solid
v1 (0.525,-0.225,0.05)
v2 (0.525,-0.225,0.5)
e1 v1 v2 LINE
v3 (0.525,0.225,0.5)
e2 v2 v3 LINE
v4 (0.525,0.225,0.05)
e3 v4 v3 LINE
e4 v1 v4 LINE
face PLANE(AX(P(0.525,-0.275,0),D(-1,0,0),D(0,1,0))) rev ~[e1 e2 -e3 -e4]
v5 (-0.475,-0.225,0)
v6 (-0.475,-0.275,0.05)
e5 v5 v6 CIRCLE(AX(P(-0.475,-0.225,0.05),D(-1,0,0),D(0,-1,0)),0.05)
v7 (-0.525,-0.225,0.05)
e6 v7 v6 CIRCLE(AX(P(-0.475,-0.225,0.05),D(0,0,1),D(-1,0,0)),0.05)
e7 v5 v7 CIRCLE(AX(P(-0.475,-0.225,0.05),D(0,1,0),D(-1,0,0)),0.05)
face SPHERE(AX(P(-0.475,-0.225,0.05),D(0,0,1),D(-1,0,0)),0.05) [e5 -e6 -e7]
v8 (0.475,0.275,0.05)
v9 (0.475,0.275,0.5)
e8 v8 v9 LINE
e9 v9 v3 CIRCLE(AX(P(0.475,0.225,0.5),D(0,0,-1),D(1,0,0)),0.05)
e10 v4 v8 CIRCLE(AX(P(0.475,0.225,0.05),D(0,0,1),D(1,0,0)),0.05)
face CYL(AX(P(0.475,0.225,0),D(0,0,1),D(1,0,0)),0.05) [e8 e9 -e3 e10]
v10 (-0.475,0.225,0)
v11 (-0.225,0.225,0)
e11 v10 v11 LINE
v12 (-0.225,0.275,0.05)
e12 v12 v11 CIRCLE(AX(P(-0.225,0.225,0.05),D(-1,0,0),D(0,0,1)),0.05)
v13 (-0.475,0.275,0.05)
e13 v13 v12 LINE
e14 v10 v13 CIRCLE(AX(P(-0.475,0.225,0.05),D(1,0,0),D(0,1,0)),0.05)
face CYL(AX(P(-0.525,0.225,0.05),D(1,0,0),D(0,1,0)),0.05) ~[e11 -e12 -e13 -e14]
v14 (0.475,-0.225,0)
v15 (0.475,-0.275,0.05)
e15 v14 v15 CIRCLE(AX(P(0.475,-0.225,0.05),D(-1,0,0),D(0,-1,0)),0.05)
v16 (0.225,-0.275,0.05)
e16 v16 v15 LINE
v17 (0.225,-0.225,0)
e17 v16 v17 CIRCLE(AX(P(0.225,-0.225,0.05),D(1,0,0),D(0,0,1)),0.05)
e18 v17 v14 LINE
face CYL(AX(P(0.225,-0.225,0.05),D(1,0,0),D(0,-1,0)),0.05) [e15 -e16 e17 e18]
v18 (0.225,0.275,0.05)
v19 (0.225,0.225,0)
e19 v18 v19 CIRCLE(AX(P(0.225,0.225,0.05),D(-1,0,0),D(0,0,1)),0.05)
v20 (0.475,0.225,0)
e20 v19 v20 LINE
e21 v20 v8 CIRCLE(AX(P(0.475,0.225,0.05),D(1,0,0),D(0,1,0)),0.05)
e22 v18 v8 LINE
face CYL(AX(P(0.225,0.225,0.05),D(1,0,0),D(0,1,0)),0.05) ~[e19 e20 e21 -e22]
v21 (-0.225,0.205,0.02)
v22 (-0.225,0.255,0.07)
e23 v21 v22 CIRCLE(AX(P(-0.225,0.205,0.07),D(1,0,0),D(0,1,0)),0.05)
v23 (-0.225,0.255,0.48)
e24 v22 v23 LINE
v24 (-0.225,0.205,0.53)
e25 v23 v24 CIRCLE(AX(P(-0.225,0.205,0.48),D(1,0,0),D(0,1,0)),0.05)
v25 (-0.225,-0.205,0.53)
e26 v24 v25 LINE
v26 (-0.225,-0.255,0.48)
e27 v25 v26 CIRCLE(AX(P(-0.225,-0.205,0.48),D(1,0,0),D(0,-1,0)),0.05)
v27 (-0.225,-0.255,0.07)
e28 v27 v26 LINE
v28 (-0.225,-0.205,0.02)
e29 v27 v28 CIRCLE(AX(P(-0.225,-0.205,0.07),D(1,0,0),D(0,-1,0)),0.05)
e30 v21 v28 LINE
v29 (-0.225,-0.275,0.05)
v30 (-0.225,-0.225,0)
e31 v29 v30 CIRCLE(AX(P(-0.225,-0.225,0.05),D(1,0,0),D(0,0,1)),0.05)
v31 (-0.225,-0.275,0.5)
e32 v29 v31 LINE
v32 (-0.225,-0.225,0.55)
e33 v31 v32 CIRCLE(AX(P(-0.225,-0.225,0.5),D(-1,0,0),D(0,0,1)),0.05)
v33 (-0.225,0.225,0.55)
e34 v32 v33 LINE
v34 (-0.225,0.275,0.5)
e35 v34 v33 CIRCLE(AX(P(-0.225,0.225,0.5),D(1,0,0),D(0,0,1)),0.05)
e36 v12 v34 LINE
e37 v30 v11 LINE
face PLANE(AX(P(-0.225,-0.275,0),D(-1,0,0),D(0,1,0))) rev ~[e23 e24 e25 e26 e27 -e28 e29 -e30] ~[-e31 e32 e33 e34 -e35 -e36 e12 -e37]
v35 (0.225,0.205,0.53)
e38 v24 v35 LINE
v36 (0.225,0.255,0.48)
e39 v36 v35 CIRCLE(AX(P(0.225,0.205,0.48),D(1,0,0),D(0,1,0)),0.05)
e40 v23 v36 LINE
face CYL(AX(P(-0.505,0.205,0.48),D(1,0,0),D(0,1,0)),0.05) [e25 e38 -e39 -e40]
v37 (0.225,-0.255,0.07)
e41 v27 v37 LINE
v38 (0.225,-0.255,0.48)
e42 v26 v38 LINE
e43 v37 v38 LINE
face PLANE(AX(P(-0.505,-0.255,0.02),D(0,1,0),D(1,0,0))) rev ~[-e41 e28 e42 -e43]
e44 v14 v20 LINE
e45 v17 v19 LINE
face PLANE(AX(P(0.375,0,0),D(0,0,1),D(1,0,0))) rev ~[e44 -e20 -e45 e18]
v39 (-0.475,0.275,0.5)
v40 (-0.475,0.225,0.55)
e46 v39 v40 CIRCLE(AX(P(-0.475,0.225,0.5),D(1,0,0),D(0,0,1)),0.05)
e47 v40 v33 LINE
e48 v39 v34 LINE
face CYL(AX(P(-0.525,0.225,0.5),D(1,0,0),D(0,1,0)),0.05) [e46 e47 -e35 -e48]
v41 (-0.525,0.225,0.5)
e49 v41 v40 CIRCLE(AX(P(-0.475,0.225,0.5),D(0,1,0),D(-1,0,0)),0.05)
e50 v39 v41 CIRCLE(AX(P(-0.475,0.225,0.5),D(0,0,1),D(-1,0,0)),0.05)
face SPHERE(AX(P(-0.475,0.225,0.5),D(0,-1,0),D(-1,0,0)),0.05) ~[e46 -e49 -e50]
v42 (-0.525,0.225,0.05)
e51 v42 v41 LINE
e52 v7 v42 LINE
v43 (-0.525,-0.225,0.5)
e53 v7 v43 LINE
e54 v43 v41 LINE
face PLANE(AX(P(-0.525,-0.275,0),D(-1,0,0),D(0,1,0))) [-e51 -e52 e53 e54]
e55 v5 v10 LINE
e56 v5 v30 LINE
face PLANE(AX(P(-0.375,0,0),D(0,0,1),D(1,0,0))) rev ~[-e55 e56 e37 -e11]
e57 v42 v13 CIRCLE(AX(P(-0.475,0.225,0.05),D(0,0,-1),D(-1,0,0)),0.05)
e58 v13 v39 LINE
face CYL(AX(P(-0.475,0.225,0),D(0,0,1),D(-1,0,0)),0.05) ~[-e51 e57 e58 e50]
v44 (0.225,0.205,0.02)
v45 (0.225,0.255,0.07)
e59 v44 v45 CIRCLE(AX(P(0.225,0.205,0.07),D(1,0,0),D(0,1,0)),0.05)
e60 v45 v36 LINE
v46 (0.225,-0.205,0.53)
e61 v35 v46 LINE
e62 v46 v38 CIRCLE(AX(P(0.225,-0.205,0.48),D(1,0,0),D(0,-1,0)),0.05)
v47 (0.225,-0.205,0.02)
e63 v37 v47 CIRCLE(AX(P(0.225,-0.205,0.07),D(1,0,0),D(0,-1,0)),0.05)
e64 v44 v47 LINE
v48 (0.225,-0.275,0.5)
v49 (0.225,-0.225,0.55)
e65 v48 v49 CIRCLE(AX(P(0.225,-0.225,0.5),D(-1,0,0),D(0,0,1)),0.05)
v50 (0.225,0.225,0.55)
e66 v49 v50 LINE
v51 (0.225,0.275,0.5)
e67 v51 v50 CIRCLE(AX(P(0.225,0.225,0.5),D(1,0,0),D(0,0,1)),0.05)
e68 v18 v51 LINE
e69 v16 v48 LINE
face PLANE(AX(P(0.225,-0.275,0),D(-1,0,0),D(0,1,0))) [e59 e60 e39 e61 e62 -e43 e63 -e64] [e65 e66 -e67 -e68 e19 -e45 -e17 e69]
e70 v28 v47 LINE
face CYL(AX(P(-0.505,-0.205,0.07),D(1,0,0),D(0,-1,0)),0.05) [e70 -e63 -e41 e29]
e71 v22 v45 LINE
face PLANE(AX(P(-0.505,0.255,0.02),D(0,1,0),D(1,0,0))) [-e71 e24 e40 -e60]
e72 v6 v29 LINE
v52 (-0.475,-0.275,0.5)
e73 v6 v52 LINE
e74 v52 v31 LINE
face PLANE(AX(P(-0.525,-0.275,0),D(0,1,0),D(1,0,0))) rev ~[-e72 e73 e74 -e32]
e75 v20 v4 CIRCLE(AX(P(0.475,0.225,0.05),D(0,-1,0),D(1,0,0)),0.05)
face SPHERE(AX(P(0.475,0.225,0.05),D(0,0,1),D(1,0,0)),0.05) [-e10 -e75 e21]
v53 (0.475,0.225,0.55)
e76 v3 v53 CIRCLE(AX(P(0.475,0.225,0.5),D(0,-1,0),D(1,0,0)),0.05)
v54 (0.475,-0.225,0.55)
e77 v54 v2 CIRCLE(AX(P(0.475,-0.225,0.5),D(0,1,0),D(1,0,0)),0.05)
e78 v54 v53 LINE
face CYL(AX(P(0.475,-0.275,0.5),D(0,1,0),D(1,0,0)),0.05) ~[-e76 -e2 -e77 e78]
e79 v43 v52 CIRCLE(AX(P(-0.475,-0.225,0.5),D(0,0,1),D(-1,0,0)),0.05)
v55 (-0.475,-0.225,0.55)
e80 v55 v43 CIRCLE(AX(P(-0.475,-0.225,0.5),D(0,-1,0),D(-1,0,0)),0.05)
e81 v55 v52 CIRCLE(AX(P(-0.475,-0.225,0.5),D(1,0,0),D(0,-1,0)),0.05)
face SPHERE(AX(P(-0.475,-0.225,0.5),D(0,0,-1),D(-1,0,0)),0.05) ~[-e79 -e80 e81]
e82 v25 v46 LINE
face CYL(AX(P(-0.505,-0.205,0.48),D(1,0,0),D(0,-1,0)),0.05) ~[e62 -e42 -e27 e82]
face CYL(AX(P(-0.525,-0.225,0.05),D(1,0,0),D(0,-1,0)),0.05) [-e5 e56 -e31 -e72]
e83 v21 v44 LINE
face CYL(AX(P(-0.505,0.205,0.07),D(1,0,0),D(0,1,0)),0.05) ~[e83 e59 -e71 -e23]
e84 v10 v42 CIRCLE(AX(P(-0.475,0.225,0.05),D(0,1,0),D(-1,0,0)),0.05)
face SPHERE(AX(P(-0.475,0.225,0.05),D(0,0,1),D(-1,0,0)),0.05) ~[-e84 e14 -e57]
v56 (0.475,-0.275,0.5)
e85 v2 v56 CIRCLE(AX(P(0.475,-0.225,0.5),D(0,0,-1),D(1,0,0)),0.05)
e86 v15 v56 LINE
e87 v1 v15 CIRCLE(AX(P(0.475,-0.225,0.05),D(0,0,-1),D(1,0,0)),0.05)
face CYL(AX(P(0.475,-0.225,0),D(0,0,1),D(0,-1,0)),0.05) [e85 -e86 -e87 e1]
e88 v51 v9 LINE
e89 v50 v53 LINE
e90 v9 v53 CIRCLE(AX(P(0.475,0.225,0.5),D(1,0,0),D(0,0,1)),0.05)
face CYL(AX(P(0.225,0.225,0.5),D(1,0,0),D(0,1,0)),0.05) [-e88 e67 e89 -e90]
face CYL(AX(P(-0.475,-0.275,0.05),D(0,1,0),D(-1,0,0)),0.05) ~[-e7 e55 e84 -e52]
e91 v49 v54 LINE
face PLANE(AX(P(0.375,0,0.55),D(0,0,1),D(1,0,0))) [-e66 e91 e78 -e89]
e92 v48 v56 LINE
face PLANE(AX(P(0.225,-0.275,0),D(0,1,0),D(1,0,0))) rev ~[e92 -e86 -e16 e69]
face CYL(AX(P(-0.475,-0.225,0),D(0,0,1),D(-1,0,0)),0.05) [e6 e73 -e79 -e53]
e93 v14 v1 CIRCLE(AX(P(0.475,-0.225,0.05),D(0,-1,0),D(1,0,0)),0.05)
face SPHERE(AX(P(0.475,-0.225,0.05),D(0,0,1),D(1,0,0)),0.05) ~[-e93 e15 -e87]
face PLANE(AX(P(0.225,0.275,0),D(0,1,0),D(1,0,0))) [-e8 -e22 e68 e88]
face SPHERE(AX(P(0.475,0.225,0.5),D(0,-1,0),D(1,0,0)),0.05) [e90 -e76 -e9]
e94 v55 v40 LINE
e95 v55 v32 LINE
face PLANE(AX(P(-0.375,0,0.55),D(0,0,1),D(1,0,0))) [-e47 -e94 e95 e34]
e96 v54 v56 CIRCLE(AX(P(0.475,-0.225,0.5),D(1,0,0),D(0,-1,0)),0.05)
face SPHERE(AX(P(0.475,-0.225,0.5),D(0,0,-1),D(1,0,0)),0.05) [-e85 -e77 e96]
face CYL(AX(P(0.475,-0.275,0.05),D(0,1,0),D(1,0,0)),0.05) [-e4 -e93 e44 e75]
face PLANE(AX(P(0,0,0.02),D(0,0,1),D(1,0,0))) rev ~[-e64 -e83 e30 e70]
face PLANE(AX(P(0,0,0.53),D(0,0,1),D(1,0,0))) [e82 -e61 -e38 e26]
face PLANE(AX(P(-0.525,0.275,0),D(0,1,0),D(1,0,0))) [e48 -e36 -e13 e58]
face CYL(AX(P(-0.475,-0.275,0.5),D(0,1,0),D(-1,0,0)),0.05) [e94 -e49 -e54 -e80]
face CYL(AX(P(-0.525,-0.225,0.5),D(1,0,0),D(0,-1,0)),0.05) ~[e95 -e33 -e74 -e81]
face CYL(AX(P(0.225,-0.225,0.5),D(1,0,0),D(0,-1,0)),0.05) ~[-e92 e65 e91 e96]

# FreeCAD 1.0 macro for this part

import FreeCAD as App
import Part
import Sketcher

V = App.Vector


def edges_at(feature, points):
    """Names of the edges that pass closest to the given points."""
    edges = feature.Shape.Edges
    near = lambda p: min(range(len(edges)), key=lambda i: edges[i].distToShape(Part.Vertex(*p))[0])
    return sorted({f"Edge{near(p) + 1}" for p in points})

doc = App.newDocument("Part")
body = doc.addObject("PartDesign::Body", "Body")

# Sketch on XY plane
sketch1 = doc.addObject("Sketcher::SketchObject", "Sketch")
body.addObject(sketch1)
sketch1.AttachmentSupport = (doc.XY_Plane, [""])
sketch1.MapMode = "FlatFace"
sketch1.addGeometry(Part.LineSegment(V(-0.53, 0.28, 0), V(-0.53, -0.28, 0)), False)
sketch1.addGeometry(Part.LineSegment(V(-0.53, -0.28, 0), V(-0.23, -0.28, 0)), False)
sketch1.addGeometry(Part.LineSegment(V(-0.23, -0.28, 0), V(-0.23, 0.28, 0)), False)
sketch1.addGeometry(Part.LineSegment(V(-0.23, 0.28, 0), V(-0.53, 0.28, 0)), False)
sketch1.addConstraint(Sketcher.Constraint("Coincident", 0, 2, 1, 1))
sketch1.addConstraint(Sketcher.Constraint("Coincident", 1, 2, 2, 1))
sketch1.addConstraint(Sketcher.Constraint("Coincident", 2, 2, 3, 1))
sketch1.addConstraint(Sketcher.Constraint("Coincident", 3, 2, 0, 1))
sketch1.addConstraint(Sketcher.Constraint("Vertical", 0))
sketch1.addConstraint(Sketcher.Constraint("Horizontal", 1))
sketch1.addConstraint(Sketcher.Constraint("Vertical", 2))
sketch1.addConstraint(Sketcher.Constraint("Horizontal", 3))
sketch1.addConstraint(Sketcher.Constraint("DistanceX", 1, 1, 1, 2, 0.3))
sketch1.addConstraint(Sketcher.Constraint("DistanceY", 0, 2, 0, 1, 0.55))
sketch1.addConstraint(Sketcher.Constraint("DistanceX", 0, 2, -1, 1, 0.525))
sketch1.addConstraint(Sketcher.Constraint("DistanceY", 0, 2, -1, 1, 0.275))
pad1 = doc.addObject("PartDesign::Pad", "Pad")
body.addObject(pad1)
pad1.Profile = sketch1
pad1.Length = 0.55
doc.recompute()

fillet = doc.addObject("PartDesign::Fillet", "Fillet")
body.addObject(fillet)
fillet.Base = (pad1, edges_at(pad1, [
    (-0.525, -0.275, 0.275),
    (-0.525, 0, 0.55),
    (-0.525, 0.275, 0.275),
    (-0.525, 0, 0),
    (-0.375, -0.275, 0),
    (-0.375, -0.275, 0.55),
    (-0.375, 0.275, 0),
    (-0.375, 0.275, 0.55),
]))
fillet.Radius = 0.05
body2 = doc.addObject("PartDesign::Body", "Body001")

# Sketch on XY plane
sketch2 = doc.addObject("Sketcher::SketchObject", "Sketch001")
body2.addObject(sketch2)
sketch2.AttachmentSupport = (doc.getObject("XY_Plane001"), [""])
sketch2.MapMode = "FlatFace"
sketch2.addGeometry(Part.LineSegment(V(0.23, 0.28, 0), V(0.23, -0.28, 0)), False)
sketch2.addGeometry(Part.LineSegment(V(0.23, -0.28, 0), V(0.53, -0.28, 0)), False)
sketch2.addGeometry(Part.LineSegment(V(0.53, -0.28, 0), V(0.53, 0.28, 0)), False)
sketch2.addGeometry(Part.LineSegment(V(0.53, 0.28, 0), V(0.23, 0.28, 0)), False)
sketch2.addConstraint(Sketcher.Constraint("Coincident", 0, 2, 1, 1))
sketch2.addConstraint(Sketcher.Constraint("Coincident", 1, 2, 2, 1))
sketch2.addConstraint(Sketcher.Constraint("Coincident", 2, 2, 3, 1))
sketch2.addConstraint(Sketcher.Constraint("Coincident", 3, 2, 0, 1))
sketch2.addConstraint(Sketcher.Constraint("Vertical", 0))
sketch2.addConstraint(Sketcher.Constraint("Horizontal", 1))
sketch2.addConstraint(Sketcher.Constraint("Vertical", 2))
sketch2.addConstraint(Sketcher.Constraint("Horizontal", 3))
sketch2.addConstraint(Sketcher.Constraint("DistanceX", 1, 1, 1, 2, 0.3))
sketch2.addConstraint(Sketcher.Constraint("DistanceY", 0, 2, 0, 1, 0.55))
sketch2.addConstraint(Sketcher.Constraint("DistanceX", -1, 1, 0, 2, 0.225))
sketch2.addConstraint(Sketcher.Constraint("DistanceY", 0, 2, -1, 1, 0.275))
pad2 = doc.addObject("PartDesign::Pad", "Pad001")
body2.addObject(pad2)
pad2.Profile = sketch2
pad2.Length = 0.55
doc.recompute()

fillet2 = doc.addObject("PartDesign::Fillet", "Fillet001")
body2.addObject(fillet2)
fillet2.Base = (pad2, edges_at(pad2, [
    (0.525, -0.275, 0.275),
    (0.525, 0, 0.55),
    (0.525, 0.275, 0.275),
    (0.525, 0, 0),
    (0.375, -0.275, 0),
    (0.375, -0.275, 0.55),
    (0.375, 0.275, 0),
    (0.375, 0.275, 0.55),
]))
fillet2.Radius = 0.05
body3 = doc.addObject("PartDesign::Body", "Body002")

# Sketch on XY plane
sketch3 = doc.addObject("Sketcher::SketchObject", "Sketch002")
body3.addObject(sketch3)
sketch3.AttachmentSupport = (doc.getObject("XY_Plane002"), [""])
sketch3.MapMode = "FlatFace"
sketch3.AttachmentOffset = App.Placement(V(0, 0, 0.02), App.Rotation())
sketch3.addGeometry(Part.LineSegment(V(-0.5, 0.3, 0), V(-0.5, -0.3, 0)), False)
sketch3.addGeometry(Part.LineSegment(V(-0.5, -0.3, 0), V(0.5, -0.3, 0)), False)
sketch3.addGeometry(Part.LineSegment(V(0.5, -0.3, 0), V(0.5, 0.3, 0)), False)
sketch3.addGeometry(Part.LineSegment(V(0.5, 0.3, 0), V(-0.5, 0.3, 0)), False)
sketch3.addConstraint(Sketcher.Constraint("Coincident", 0, 2, 1, 1))
sketch3.addConstraint(Sketcher.Constraint("Coincident", 1, 2, 2, 1))
sketch3.addConstraint(Sketcher.Constraint("Coincident", 2, 2, 3, 1))
sketch3.addConstraint(Sketcher.Constraint("Coincident", 3, 2, 0, 1))
sketch3.addConstraint(Sketcher.Constraint("Vertical", 0))
sketch3.addConstraint(Sketcher.Constraint("Horizontal", 1))
sketch3.addConstraint(Sketcher.Constraint("Vertical", 2))
sketch3.addConstraint(Sketcher.Constraint("Horizontal", 3))
sketch3.addConstraint(Sketcher.Constraint("Symmetric", 0, 2, 2, 2, -1, 1))
sketch3.addConstraint(Sketcher.Constraint("DistanceX", 1, 1, 1, 2, 1.01))
sketch3.addConstraint(Sketcher.Constraint("DistanceY", 0, 2, 0, 1, 0.51))
pad3 = doc.addObject("PartDesign::Pad", "Pad002")
body3.addObject(pad3)
pad3.Profile = sketch3
pad3.Length = 0.51
doc.recompute()

fillet3 = doc.addObject("PartDesign::Fillet", "Fillet002")
body3.addObject(fillet3)
fillet3.Base = (pad3, edges_at(pad3, [
    (0, -0.255, 0.02),
    (0, -0.255, 0.53),
    (0, 0.255, 0.02),
    (0, 0.255, 0.53),
]))
fillet3.Radius = 0.05
doc.recompute()

boolean = doc.addObject("PartDesign::Boolean", "Boolean")
body3.addObject(boolean)
boolean.Type = "Fuse"
boolean.addObjects([body])
doc.recompute()

boolean2 = doc.addObject("PartDesign::Boolean", "Boolean001")
body3.addObject(boolean2)
boolean2.Type = "Fuse"
boolean2.addObjects([body2])

doc.recompute()
